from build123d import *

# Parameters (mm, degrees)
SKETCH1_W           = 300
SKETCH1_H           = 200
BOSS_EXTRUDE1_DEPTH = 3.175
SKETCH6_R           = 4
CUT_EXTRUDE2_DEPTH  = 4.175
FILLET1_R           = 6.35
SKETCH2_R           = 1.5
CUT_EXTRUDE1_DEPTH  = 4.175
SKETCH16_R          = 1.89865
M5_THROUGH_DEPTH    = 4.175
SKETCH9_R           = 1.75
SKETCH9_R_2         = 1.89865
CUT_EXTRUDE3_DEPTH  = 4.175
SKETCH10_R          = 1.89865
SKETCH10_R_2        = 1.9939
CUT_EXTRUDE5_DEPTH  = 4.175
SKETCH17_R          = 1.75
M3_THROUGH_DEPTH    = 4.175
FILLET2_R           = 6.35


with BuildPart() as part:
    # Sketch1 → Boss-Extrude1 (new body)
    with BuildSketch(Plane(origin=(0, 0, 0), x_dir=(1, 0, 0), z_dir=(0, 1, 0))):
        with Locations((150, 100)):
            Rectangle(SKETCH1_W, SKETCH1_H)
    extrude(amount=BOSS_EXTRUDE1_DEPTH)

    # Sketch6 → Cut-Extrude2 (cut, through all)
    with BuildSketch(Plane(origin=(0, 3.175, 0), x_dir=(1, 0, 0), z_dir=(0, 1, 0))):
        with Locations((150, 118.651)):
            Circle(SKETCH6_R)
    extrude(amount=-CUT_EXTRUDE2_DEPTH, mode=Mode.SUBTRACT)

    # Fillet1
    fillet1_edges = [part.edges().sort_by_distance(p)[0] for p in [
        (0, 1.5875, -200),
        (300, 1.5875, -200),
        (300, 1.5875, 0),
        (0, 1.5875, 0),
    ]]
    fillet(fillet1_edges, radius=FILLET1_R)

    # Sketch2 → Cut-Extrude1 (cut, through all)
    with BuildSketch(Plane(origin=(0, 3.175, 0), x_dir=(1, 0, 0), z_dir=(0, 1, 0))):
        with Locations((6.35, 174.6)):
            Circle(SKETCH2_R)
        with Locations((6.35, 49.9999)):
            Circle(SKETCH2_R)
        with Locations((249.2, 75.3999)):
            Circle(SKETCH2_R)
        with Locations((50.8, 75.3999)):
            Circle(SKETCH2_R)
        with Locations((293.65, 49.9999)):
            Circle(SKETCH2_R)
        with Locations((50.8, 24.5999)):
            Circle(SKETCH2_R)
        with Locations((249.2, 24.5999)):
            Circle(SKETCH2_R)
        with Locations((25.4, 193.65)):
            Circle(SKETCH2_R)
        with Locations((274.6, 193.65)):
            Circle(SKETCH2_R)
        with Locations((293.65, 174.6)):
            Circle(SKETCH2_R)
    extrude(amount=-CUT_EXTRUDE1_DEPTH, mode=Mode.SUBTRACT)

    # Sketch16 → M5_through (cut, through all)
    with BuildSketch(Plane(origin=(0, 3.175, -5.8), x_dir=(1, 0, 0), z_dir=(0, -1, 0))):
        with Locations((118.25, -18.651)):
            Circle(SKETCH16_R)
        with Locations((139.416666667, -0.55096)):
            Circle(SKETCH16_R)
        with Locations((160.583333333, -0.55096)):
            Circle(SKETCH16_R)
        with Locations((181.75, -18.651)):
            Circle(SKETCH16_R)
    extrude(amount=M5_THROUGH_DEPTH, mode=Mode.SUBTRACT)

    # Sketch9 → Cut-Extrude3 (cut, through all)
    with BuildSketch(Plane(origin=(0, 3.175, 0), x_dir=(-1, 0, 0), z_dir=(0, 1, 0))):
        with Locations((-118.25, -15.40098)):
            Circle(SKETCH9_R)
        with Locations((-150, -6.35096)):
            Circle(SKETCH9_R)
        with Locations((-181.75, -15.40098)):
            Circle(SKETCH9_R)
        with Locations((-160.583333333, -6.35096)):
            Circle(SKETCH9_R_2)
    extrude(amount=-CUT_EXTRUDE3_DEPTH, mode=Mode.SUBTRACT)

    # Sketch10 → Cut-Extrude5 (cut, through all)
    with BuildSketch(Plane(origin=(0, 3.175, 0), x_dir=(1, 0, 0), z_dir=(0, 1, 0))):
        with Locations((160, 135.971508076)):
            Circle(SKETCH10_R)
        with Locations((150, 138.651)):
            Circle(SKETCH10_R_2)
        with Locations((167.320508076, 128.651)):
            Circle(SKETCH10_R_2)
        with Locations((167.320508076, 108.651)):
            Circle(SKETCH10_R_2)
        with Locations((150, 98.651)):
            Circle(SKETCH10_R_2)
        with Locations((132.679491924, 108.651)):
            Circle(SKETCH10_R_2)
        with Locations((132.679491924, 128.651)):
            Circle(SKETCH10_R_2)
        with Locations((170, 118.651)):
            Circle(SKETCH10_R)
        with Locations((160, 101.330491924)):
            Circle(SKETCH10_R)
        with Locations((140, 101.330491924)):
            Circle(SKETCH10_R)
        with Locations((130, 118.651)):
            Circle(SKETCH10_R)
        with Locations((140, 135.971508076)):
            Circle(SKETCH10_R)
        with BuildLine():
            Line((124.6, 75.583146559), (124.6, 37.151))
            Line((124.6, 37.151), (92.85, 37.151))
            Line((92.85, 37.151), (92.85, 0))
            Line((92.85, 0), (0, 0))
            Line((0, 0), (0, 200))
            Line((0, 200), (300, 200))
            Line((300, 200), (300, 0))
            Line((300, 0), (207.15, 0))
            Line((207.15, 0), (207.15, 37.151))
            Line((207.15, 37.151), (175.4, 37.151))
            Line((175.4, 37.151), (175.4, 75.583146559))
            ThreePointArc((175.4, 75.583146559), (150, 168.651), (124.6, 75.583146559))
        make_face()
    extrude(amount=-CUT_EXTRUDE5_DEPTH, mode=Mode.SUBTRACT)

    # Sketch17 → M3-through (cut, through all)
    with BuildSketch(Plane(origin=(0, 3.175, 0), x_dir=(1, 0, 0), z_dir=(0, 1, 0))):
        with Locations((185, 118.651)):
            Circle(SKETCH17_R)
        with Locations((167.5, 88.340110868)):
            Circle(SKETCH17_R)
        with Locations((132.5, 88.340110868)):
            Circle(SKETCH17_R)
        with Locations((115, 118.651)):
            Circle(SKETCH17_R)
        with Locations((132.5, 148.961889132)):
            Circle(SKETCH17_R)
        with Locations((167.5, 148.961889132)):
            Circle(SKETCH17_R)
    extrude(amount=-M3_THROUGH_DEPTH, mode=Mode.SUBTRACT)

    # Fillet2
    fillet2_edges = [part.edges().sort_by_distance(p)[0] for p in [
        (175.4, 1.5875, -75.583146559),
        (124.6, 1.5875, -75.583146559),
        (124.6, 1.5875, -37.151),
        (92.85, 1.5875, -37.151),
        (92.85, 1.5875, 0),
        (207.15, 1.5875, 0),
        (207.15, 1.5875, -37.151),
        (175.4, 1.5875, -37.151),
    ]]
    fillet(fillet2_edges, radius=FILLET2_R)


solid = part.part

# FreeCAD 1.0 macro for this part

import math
import FreeCAD as App
import Part
import Sketcher
Q = App.Units.Quantity


def edges_at(feature, points):
    """Names of the edges that pass closest to the given points."""
    edges = feature.Shape.Edges
    near = lambda p: min(range(len(edges)), key=lambda i: edges[i].distToShape(Part.Vertex(*p))[0])
    return sorted({f"Edge{near(p) + 1}" for p in points})


def add_polygon(sketch, points):
    """Adds a closed chain of lines whose ends are joined by coincident constraints."""
    first, n = sketch.GeometryCount, len(points)
    for a, b in zip(points, points[1:] + points[:1]):
        sketch.addGeometry(Part.LineSegment(App.Vector(*a, 0), App.Vector(*b, 0)), False)
    for i in range(n):
        sketch.addConstraint(Sketcher.Constraint("Coincident", first + i, 2, first + (i + 1) % n, 1))

doc = App.newDocument("Part")
body = doc.addObject("PartDesign::Body", "Body")

# Sketch on XZ plane
sketch1 = body.newObject("Sketcher::SketchObject", "Sketch")
sketch1.AttachmentSupport = (doc.getObject("XZ_Plane"), [""])
sketch1.MapMode = "FlatFace"
add_polygon(sketch1, [(0, -200), (0, 0), (300, 0), (300, -200)])  # lines 0-3
sketch1.addConstraint([
    Sketcher.Constraint("Vertical", 0),
    Sketcher.Constraint("Horizontal", 1),
    Sketcher.Constraint("Vertical", 2),
    Sketcher.Constraint("Horizontal", 3),
    Sketcher.Constraint("Coincident", 0, 2, -1, 1),
    Sketcher.Constraint("DistanceX", 1, 1, 1, 2, Q("300 mm")),
    Sketcher.Constraint("DistanceY", 0, 1, 0, 2, Q("200 mm")),
])
pad1 = body.newObject("PartDesign::Pad", "Pad")
pad1.Profile = sketch1
pad1.Length = 3.175
pad1.Reversed = True

# Sketch on XZ plane
sketch2 = body.newObject("Sketcher::SketchObject", "Sketch001")
sketch2.AttachmentSupport = (doc.getObject("XZ_Plane"), [""])
sketch2.MapMode = "FlatFace"
sketch2.AttachmentOffset = App.Placement(App.Vector(0, 0, -3.175), App.Rotation())
sketch2.addGeometry(Part.Circle(App.Vector(150, -118.7, 0), App.Vector(0, 0, 1), 4), False)
sketch2.addConstraint([
    Sketcher.Constraint("Diameter", 0, Q("8 mm")),
    Sketcher.Constraint("DistanceX", -1, 1, 0, 3, Q("150 mm")),
    Sketcher.Constraint("DistanceY", 0, 3, -1, 1, Q("118.651 mm")),
])
pocket1 = body.newObject("PartDesign::Pocket", "Pocket")
pocket1.Profile = sketch2
pocket1.Type = "ThroughAll"
pocket1.Reversed = True
doc.recompute()

fillet = body.newObject("PartDesign::Fillet", "Fillet")
fillet.Base = (pocket1, edges_at(pocket1, [
    (0, 1.587, -200),
    (300, 1.587, -200),
    (300, 1.587, 0),
    (0, 1.587, 0),
]))
fillet.Radius = 6.35

# Sketch on XZ plane
sketch3 = body.newObject("Sketcher::SketchObject", "Sketch002")
sketch3.AttachmentSupport = (doc.getObject("XZ_Plane"), [""])
sketch3.MapMode = "FlatFace"
sketch3.AttachmentOffset = App.Placement(App.Vector(0, 0, -3.175), App.Rotation())
sketch3.addGeometry([
    Part.Circle(App.Vector(6.3, -174.6, 0), App.Vector(0, 0, 1), 1.5),  # 0
    Part.Circle(App.Vector(6.3, -50, 0), App.Vector(0, 0, 1), 1.5),  # 1
    Part.Circle(App.Vector(249.2, -75.4, 0), App.Vector(0, 0, 1), 1.5),  # 2
    Part.Circle(App.Vector(50.8, -75.4, 0), App.Vector(0, 0, 1), 1.5),  # 3
    Part.Circle(App.Vector(293.6, -50, 0), App.Vector(0, 0, 1), 1.5),  # 4
    Part.Circle(App.Vector(50.8, -24.6, 0), App.Vector(0, 0, 1), 1.5),  # 5
    Part.Circle(App.Vector(249.2, -24.6, 0), App.Vector(0, 0, 1), 1.5),  # 6
    Part.Circle(App.Vector(25.4, -193.7, 0), App.Vector(0, 0, 1), 1.5),  # 7
    Part.Circle(App.Vector(274.6, -193.7, 0), App.Vector(0, 0, 1), 1.5),  # 8
    Part.Circle(App.Vector(293.6, -174.6, 0), App.Vector(0, 0, 1), 1.5),  # 9
], False)
sketch3.addConstraint([
    Sketcher.Constraint("Equal", 0, 1),
    Sketcher.Constraint("Equal", 1, 2),
    Sketcher.Constraint("Equal", 2, 3),
    Sketcher.Constraint("Equal", 3, 4),
    Sketcher.Constraint("Equal", 4, 5),
    Sketcher.Constraint("Equal", 5, 6),
    Sketcher.Constraint("Equal", 6, 7),
    Sketcher.Constraint("Equal", 7, 8),
    Sketcher.Constraint("Equal", 8, 9),
    Sketcher.Constraint("Horizontal", 2, 3, 3, 3),
    Sketcher.Constraint("Horizontal", 1, 3, 4, 3),
    Sketcher.Constraint("Horizontal", 5, 3, 6, 3),
    Sketcher.Constraint("Horizontal", 7, 3, 8, 3),
    Sketcher.Constraint("Horizontal", 0, 3, 9, 3),
    Sketcher.Constraint("Vertical", 0, 3, 1, 3),
    Sketcher.Constraint("Vertical", 3, 3, 5, 3),
    Sketcher.Constraint("Vertical", 2, 3, 6, 3),
    Sketcher.Constraint("Vertical", 4, 3, 9, 3),
    Sketcher.Constraint("Diameter", 0, Q("3 mm")),
    Sketcher.Constraint("DistanceY", 0, 3, -1, 1, Q("174.6 mm")),
    Sketcher.Constraint("DistanceX", -1, 1, 2, 3, Q("249.2 mm")),
    Sketcher.Constraint("DistanceX", -1, 1, 3, 3, Q("50.8 mm")),
    Sketcher.Constraint("DistanceX", -1, 1, 7, 3, Q("25.4 mm")),
    Sketcher.Constraint("DistanceX", -1, 1, 8, 3, Q("274.6 mm")),
    Sketcher.Constraint("DistanceY", 2, 3, 1, 3, Q("25.4 mm")),
    Sketcher.Constraint("DistanceX", 1, 3, 4, 3, Q("287.3 mm")),
    Sketcher.Constraint("DistanceY", 3, 3, 5, 3, Q("50.8 mm")),
    Sketcher.Constraint("DistanceX", -1, 1, 0, 3, Q("6.35 mm")),
    Sketcher.Constraint("DistanceY", 7, 3, -1, 1, Q("193.65 mm")),
    Sketcher.Constraint("DistanceY", 1, 3, -1, 1, Q("49.9999 mm")),
])
pocket2 = body.newObject("PartDesign::Pocket", "Pocket001")
pocket2.Profile = sketch3
pocket2.Type = "ThroughAll"
pocket2.Reversed = True

# Sketch on XZ plane
sketch4 = body.newObject("Sketcher::SketchObject", "Sketch003")
sketch4.AttachmentSupport = (doc.getObject("XZ_Plane"), [""])
sketch4.MapMode = "FlatFace"
sketch4.AttachmentOffset = App.Placement(App.Vector(0, 0, -3.175), App.Rotation())
sketch4.addGeometry([
    Part.Circle(App.Vector(118.2, -24.5, 0), App.Vector(0, 0, 1), 1.9),
    Part.Circle(App.Vector(139.4, -6.4, 0), App.Vector(0, 0, 1), 1.9),
    Part.Circle(App.Vector(160.6, -6.4, 0), App.Vector(0, 0, 1), 1.9),
    Part.Circle(App.Vector(181.8, -24.5, 0), App.Vector(0, 0, 1), 1.9),
], False)
sketch4.addConstraint([
    Sketcher.Constraint("Equal", 0, 1),
    Sketcher.Constraint("Equal", 1, 2),
    Sketcher.Constraint("Equal", 2, 3),
    Sketcher.Constraint("Horizontal", 1, 3, 2, 3),
    Sketcher.Constraint("Horizontal", 0, 3, 3, 3),
    Sketcher.Constraint("Diameter", 0, Q("3.7973 mm")),
    Sketcher.Constraint("DistanceX", 0, 3, 3, 3, Q("63.5 mm")),
    Sketcher.Constraint("DistanceX", -1, 1, 0, 3, Q("118.25 mm")),
    Sketcher.Constraint("DistanceY", 0, 3, -1, 1, Q("24.451 mm")),
    Sketcher.Constraint("DistanceY", 1, 3, -1, 1, Q("6.35096 mm")),
    Sketcher.Constraint("DistanceX", -1, 1, 1, 3, Q("139.416667 mm")),
    Sketcher.Constraint("DistanceX", -1, 1, 2, 3, Q("160.583333 mm")),
])
pocket3 = body.newObject("PartDesign::Pocket", "Pocket002")
pocket3.Profile = sketch4
pocket3.Type = "ThroughAll"
pocket3.Reversed = True

# Sketch on XZ plane
sketch5 = body.newObject("Sketcher::SketchObject", "Sketch004")
sketch5.AttachmentSupport = (doc.getObject("XZ_Plane"), [""])
sketch5.MapMode = "FlatFace"
sketch5.AttachmentOffset = App.Placement(App.Vector(0, 0, -3.175), App.Rotation())
sketch5.addGeometry([
    Part.Circle(App.Vector(118.2, -15.4, 0), App.Vector(0, 0, 1), 1.8),
    Part.Circle(App.Vector(150, -6.4, 0), App.Vector(0, 0, 1), 1.8),
    Part.Circle(App.Vector(181.8, -15.4, 0), App.Vector(0, 0, 1), 1.8),
    Part.Circle(App.Vector(160.6, -6.4, 0), App.Vector(0, 0, 1), 1.9),
], False)
sketch5.addConstraint([
    Sketcher.Constraint("Equal", 0, 1),
    Sketcher.Constraint("Equal", 1, 2),
    Sketcher.Constraint("Horizontal", 0, 3, 2, 3),
    Sketcher.Constraint("Horizontal", 1, 3, 3, 3),
    Sketcher.Constraint("Diameter", 0, Q("3.5 mm")),
    Sketcher.Constraint("DistanceX", -1, 1, 1, 3, Q("150 mm")),
    Sketcher.Constraint("Diameter", 3, Q("3.7973 mm")),
    Sketcher.Constraint("DistanceX", 0, 3, 2, 3, Q("63.5 mm")),
    Sketcher.Constraint("DistanceX", -1, 1, 0, 3, Q("118.25 mm")),
    Sketcher.Constraint("DistanceY", 0, 3, -1, 1, Q("15.40098 mm")),
    Sketcher.Constraint("DistanceY", 1, 3, -1, 1, Q("6.35096 mm")),
    Sketcher.Constraint("DistanceX", -1, 1, 3, 3, Q("160.583333 mm")),
])
pocket4 = body.newObject("PartDesign::Pocket", "Pocket003")
pocket4.Profile = sketch5
pocket4.Type = "ThroughAll"
pocket4.Reversed = True

# Sketch on XZ plane
sketch6 = body.newObject("Sketcher::SketchObject", "Sketch005")
sketch6.AttachmentSupport = (doc.getObject("XZ_Plane"), [""])
sketch6.MapMode = "FlatFace"
sketch6.AttachmentOffset = App.Placement(App.Vector(0, 0, -3.175), App.Rotation())
sketch6.addGeometry([
    Part.Circle(App.Vector(160, -136, 0), App.Vector(0, 0, 1), 1.9),  # 0
    Part.Circle(App.Vector(150, -138.7, 0), App.Vector(0, 0, 1), 2),  # 1
    Part.Circle(App.Vector(167.3, -128.7, 0), App.Vector(0, 0, 1), 2),  # 2
    Part.Circle(App.Vector(167.3, -108.7, 0), App.Vector(0, 0, 1), 2),  # 3
    Part.Circle(App.Vector(150, -98.7, 0), App.Vector(0, 0, 1), 2),  # 4
    Part.Circle(App.Vector(132.7, -108.7, 0), App.Vector(0, 0, 1), 2),  # 5
    Part.Circle(App.Vector(132.7, -128.7, 0), App.Vector(0, 0, 1), 2),  # 6
    Part.Circle(App.Vector(170, -118.7, 0), App.Vector(0, 0, 1), 1.9),  # 7
    Part.Circle(App.Vector(160, -101.3, 0), App.Vector(0, 0, 1), 1.9),  # 8
    Part.Circle(App.Vector(140, -101.3, 0), App.Vector(0, 0, 1), 1.9),  # 9
    Part.Circle(App.Vector(130, -118.7, 0), App.Vector(0, 0, 1), 1.9),  # 10
    Part.Circle(App.Vector(140, -136, 0), App.Vector(0, 0, 1), 1.9),  # 11
    Part.LineSegment(App.Vector(124.6, -37.2, 0), App.Vector(124.6, -75.6, 0)),  # 12
    Part.ArcOfCircle(Part.Circle(App.Vector(150, -118.7, 0), App.Vector(0, 0, 1), 50), math.radians(121), math.radians(419)),  # 13
    Part.LineSegment(App.Vector(175.4, -75.6, 0), App.Vector(175.4, -37.2, 0)),  # 14
    Part.LineSegment(App.Vector(175.4, -37.2, 0), App.Vector(207.2, -37.2, 0)),  # 15
    Part.LineSegment(App.Vector(207.2, -37.2, 0), App.Vector(207.2, 0, 0)),  # 16
    Part.LineSegment(App.Vector(207.2, 0, 0), App.Vector(300, 0, 0)),  # 17
    Part.LineSegment(App.Vector(300, 0, 0), App.Vector(300, -200, 0)),  # 18
    Part.LineSegment(App.Vector(300, -200, 0), App.Vector(0, -200, 0)),  # 19
    Part.LineSegment(App.Vector(0, -200, 0), App.Vector(0, 0, 0)),  # 20
    Part.LineSegment(App.Vector(0, 0, 0), App.Vector(92.8, 0, 0)),  # 21
    Part.LineSegment(App.Vector(92.8, 0, 0), App.Vector(92.8, -37.2, 0)),  # 22
    Part.LineSegment(App.Vector(92.8, -37.2, 0), App.Vector(124.6, -37.2, 0)),  # 23
], False)
sketch6.addConstraint([
    Sketcher.Constraint("Coincident", 12, 2, 13, 1),
    Sketcher.Constraint("Coincident", 13, 2, 14, 1),
    Sketcher.Constraint("Coincident", 14, 2, 15, 1),
    Sketcher.Constraint("Coincident", 15, 2, 16, 1),
    Sketcher.Constraint("Coincident", 16, 2, 17, 1),
    Sketcher.Constraint("Coincident", 17, 2, 18, 1),
    Sketcher.Constraint("Coincident", 18, 2, 19, 1),
    Sketcher.Constraint("Coincident", 19, 2, 20, 1),
    Sketcher.Constraint("Coincident", 20, 2, 21, 1),
    Sketcher.Constraint("Coincident", 21, 2, 22, 1),
    Sketcher.Constraint("Coincident", 22, 2, 23, 1),
    Sketcher.Constraint("Coincident", 23, 2, 12, 1),
    Sketcher.Constraint("Vertical", 12),
    Sketcher.Constraint("Vertical", 14),
    Sketcher.Constraint("Horizontal", 15),
    Sketcher.Constraint("Vertical", 16),
    Sketcher.Constraint("Horizontal", 17),
    Sketcher.Constraint("Vertical", 18),
    Sketcher.Constraint("Horizontal", 19),
    Sketcher.Constraint("Vertical", 20),
    Sketcher.Constraint("Horizontal", 21),
    Sketcher.Constraint("Vertical", 22),
    Sketcher.Constraint("Horizontal", 23),
    Sketcher.Constraint("Coincident", 20, 2, -1, 1),
    Sketcher.Constraint("Equal", 1, 2),
    Sketcher.Constraint("Equal", 2, 3),
    Sketcher.Constraint("Equal", 3, 4),
    Sketcher.Constraint("Equal", 4, 5),
    Sketcher.Constraint("Equal", 5, 6),
    Sketcher.Constraint("Equal", 0, 7),
    Sketcher.Constraint("Equal", 7, 8),
    Sketcher.Constraint("Equal", 8, 9),
    Sketcher.Constraint("Equal", 9, 10),
    Sketcher.Constraint("Equal", 10, 11),
    Sketcher.Constraint("PointOnObject", 16, 2, -1),
    Sketcher.Constraint("Horizontal", 3, 3, 5, 3),
    Sketcher.Constraint("Horizontal", 2, 3, 6, 3),
    Sketcher.Constraint("Horizontal", 8, 3, 9, 3),
    Sketcher.Constraint("Horizontal", 7, 3, 10, 3),
    Sketcher.Constraint("Horizontal", 0, 3, 11, 3),
    Sketcher.Constraint("Horizontal", 10, 3, 13, 3),
    Sketcher.Constraint("Horizontal", 12, 2, 13, 2),
    Sketcher.Constraint("Horizontal", 15, 2, 22, 2),
    Sketcher.Constraint("Vertical", 2, 3, 3, 3),
    Sketcher.Constraint("Vertical", 1, 3, 4, 3),
    Sketcher.Constraint("Vertical", 5, 3, 6, 3),
    Sketcher.Constraint("Vertical", 0, 3, 8, 3),
    Sketcher.Constraint("Vertical", 9, 3, 11, 3),
    Sketcher.Constraint("Vertical", 4, 3, 13, 3),
    Sketcher.Constraint("Equal", 17, 21),
    Sketcher.Constraint("Equal", 15, 23),
    Sketcher.Constraint("Radius", 13, Q("50 mm")),
    Sketcher.Constraint("DistanceX", 19, 2, 19, 1, Q("300 mm")),
    Sketcher.Constraint("DistanceY", 18, 2, 18, 1, Q("200 mm")),
    Sketcher.Constraint("DistanceX", -1, 1, 0, 3, Q("160 mm")),
    Sketcher.Constraint("DistanceX", -1, 1, 7, 3, Q("170 mm")),
    Sketcher.Constraint("DistanceX", -1, 1, 9, 3, Q("140 mm")),
    Sketcher.Constraint("DistanceX", -1, 1, 10, 3, Q("130 mm")),
    Sketcher.Constraint("DistanceY", 1, 3, 2, 3, Q("10 mm")),
    Sketcher.Constraint("DistanceY", 2, 3, 3, 3, Q("20 mm")),
    Sketcher.Constraint("DistanceY", 3, 3, 4, 3, Q("10 mm")),
    Sketcher.Constraint("DistanceY", 7, 3, 3, 3, Q("10 mm")),
    Sketcher.Constraint("Diameter", 0, Q("3.7973 mm")),
    Sketcher.Constraint("Diameter", 1, Q("3.9878 mm")),
    Sketcher.Constraint("DistanceX", 15, 1, 15, 2, Q("31.75 mm")),
    Sketcher.Constraint("DistanceX", 17, 1, 17, 2, Q("92.85 mm")),
    Sketcher.Constraint("DistanceY", 4, 3, 14, 2, Q("61.5 mm")),
    Sketcher.Constraint("DistanceY", 16, 1, 16, 2, Q("37.151 mm")),
    Sketcher.Constraint("DistanceY", 0, 3, -1, 1, Q("135.971508 mm")),
    Sketcher.Constraint("DistanceX", -1, 1, 2, 3, Q("167.320508 mm")),
    Sketcher.Constraint("DistanceX", -1, 1, 5, 3, Q("132.679492 mm")),
    Sketcher.Constraint("DistanceY", 8, 3, -1, 1, Q("101.330492 mm")),
])
pocket5 = body.newObject("PartDesign::Pocket", "Pocket004")
pocket5.Profile = sketch6
pocket5.Type = "ThroughAll"
pocket5.Reversed = True

# Sketch on XZ plane
sketch7 = body.newObject("Sketcher::SketchObject", "Sketch006")
sketch7.AttachmentSupport = (doc.getObject("XZ_Plane"), [""])
sketch7.MapMode = "FlatFace"
sketch7.AttachmentOffset = App.Placement(App.Vector(0, 0, -3.175), App.Rotation())
sketch7.addGeometry([
    Part.Circle(App.Vector(185, -118.7, 0), App.Vector(0, 0, 1), 1.8),  # 0
    Part.Circle(App.Vector(167.5, -88.3, 0), App.Vector(0, 0, 1), 1.8),  # 1
    Part.Circle(App.Vector(132.5, -88.3, 0), App.Vector(0, 0, 1), 1.8),  # 2
    Part.Circle(App.Vector(115, -118.7, 0), App.Vector(0, 0, 1), 1.8),  # 3
    Part.Circle(App.Vector(132.5, -149, 0), App.Vector(0, 0, 1), 1.8),  # 4
    Part.Circle(App.Vector(167.5, -149, 0), App.Vector(0, 0, 1), 1.8),  # 5
], False)
sketch7.addConstraint([
    Sketcher.Constraint("Equal", 0, 1),
    Sketcher.Constraint("Equal", 1, 2),
    Sketcher.Constraint("Equal", 2, 3),
    Sketcher.Constraint("Equal", 3, 4),
    Sketcher.Constraint("Equal", 4, 5),
    Sketcher.Constraint("Horizontal", 1, 3, 2, 3),
    Sketcher.Constraint("Horizontal", 0, 3, 3, 3),
    Sketcher.Constraint("Horizontal", 4, 3, 5, 3),
    Sketcher.Constraint("Vertical", 2, 3, 4, 3),
    Sketcher.Constraint("Vertical", 1, 3, 5, 3),
    Sketcher.Constraint("Diameter", 0, Q("3.5 mm")),
    Sketcher.Constraint("DistanceX", -1, 1, 0, 3, Q("185 mm")),
    Sketcher.Constraint("DistanceX", -1, 1, 3, 3, Q("115 mm")),
    Sketcher.Constraint("DistanceX", 2, 3, 1, 3, Q("35 mm")),
    Sketcher.Constraint("DistanceX", -1, 1, 1, 3, Q("167.5 mm")),
    Sketcher.Constraint("DistanceY", 0, 3, -1, 1, Q("118.651 mm")),
    Sketcher.Constraint("DistanceY", 1, 3, -1, 1, Q("88.340111 mm")),
    Sketcher.Constraint("DistanceY", 4, 3, -1, 1, Q("148.961889 mm")),
])
pocket6 = body.newObject("PartDesign::Pocket", "Pocket005")
pocket6.Profile = sketch7
pocket6.Type = "ThroughAll"
pocket6.Reversed = True
doc.recompute()

fillet2 = body.newObject("PartDesign::Fillet", "Fillet001")
fillet2.Base = (pocket6, edges_at(pocket6, [
    (175.4, 1.587, -75.583),
    (124.6, 1.587, -75.583),
    (124.6, 1.587, -37.151),
    (92.85, 1.587, -37.151),
    (92.85, 1.587, 0),
    (207.15, 1.587, 0),
    (207.15, 1.587, -37.151),
    (175.4, 1.587, -37.151),
]))
fillet2.Radius = 6.35

doc.recompute()
